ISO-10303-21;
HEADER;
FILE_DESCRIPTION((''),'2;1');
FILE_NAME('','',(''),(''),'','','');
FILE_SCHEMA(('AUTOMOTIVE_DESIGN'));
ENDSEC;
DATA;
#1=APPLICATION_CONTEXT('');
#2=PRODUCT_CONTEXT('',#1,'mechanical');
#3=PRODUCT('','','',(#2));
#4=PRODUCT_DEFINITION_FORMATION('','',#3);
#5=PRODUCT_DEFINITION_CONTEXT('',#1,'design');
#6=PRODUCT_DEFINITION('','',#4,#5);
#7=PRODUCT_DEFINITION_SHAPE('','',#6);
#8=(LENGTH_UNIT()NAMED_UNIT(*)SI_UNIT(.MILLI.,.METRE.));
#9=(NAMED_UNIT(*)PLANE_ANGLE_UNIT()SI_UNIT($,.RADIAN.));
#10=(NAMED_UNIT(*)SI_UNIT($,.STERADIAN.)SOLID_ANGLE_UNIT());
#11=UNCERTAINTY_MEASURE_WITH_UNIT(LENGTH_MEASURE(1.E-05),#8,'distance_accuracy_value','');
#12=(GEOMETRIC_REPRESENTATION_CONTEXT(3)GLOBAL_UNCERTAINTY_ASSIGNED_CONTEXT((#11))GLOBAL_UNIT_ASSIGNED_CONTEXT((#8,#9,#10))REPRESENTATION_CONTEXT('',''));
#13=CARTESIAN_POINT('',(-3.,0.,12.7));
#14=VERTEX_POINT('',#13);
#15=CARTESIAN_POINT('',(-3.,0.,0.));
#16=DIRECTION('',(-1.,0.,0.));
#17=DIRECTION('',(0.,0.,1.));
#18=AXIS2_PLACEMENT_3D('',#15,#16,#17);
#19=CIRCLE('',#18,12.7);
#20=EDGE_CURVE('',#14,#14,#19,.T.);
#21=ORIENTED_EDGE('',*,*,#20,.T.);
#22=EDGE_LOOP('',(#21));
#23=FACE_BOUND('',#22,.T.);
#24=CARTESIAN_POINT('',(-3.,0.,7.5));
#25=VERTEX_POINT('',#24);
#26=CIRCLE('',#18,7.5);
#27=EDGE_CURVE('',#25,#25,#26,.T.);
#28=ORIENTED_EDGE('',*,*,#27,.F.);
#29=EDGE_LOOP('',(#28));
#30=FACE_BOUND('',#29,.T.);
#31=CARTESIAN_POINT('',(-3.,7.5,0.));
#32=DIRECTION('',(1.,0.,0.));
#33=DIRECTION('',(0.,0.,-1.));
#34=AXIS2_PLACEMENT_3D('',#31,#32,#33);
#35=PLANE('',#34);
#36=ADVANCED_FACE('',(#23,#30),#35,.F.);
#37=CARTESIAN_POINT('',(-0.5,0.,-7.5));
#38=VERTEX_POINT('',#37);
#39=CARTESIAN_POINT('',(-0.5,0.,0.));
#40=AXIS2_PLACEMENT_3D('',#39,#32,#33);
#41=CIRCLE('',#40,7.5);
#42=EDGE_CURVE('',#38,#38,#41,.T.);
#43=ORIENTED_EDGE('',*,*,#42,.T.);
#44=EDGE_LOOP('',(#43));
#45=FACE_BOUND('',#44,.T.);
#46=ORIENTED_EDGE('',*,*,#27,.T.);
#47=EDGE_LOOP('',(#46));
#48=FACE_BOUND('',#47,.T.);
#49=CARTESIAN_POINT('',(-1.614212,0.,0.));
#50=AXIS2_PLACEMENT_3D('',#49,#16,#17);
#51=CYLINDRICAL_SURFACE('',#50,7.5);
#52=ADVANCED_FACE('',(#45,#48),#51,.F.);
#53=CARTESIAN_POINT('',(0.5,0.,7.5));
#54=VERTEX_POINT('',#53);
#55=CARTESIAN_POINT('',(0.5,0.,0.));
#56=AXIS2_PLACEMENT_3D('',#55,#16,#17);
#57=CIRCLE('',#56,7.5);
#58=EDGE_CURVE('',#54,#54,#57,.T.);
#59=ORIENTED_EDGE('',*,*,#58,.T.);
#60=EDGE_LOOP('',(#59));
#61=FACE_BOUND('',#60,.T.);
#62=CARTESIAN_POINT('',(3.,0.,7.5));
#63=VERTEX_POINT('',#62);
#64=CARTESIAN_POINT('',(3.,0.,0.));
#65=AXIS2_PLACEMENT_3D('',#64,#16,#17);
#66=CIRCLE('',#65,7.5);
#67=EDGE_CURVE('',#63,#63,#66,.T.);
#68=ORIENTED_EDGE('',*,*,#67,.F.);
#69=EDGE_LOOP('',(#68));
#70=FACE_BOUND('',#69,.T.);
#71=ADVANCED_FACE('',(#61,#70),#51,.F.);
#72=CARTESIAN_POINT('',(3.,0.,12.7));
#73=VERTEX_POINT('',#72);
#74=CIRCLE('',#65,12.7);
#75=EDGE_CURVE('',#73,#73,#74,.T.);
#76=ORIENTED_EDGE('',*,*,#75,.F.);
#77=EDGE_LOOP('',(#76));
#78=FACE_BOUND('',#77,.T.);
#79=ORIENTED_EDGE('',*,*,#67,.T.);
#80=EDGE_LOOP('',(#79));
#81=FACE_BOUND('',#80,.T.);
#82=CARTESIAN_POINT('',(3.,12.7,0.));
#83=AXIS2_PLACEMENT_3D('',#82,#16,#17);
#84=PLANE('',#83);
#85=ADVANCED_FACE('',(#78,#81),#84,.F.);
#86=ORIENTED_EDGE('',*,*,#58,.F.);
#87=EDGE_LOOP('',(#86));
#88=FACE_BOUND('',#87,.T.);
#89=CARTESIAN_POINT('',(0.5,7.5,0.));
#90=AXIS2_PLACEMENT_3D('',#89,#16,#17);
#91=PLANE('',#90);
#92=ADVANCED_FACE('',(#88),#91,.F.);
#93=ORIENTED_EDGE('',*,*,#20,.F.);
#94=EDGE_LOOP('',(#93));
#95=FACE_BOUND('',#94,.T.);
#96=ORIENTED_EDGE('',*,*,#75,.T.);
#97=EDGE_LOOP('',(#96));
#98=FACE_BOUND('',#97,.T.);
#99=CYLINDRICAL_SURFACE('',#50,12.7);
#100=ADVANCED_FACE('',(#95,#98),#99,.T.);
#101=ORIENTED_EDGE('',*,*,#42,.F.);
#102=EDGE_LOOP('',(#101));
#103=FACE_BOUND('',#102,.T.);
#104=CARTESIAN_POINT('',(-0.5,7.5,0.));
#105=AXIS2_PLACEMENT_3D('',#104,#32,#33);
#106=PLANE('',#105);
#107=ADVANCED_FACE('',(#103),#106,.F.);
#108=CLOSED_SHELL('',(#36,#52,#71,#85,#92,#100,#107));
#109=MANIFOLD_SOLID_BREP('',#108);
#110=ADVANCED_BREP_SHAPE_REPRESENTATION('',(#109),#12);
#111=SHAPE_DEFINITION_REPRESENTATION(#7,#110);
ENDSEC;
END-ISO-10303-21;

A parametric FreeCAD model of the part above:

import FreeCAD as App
import Part
import Sketcher

V = App.Vector

doc = App.newDocument("Part")
params = doc.addObject("Spreadsheet::Sheet", "Params")
for row, (alias, value) in enumerate([
    ("sketch1_width", "1 mm"),
    ("sketch1_height", "7.5 mm"),
    ("revolution_angle", "360 deg"),
    ("sketch2_width", "6 mm"),
    ("sketch2_height", "5.2 mm"),
    ("revolution2_angle", "360 deg"),
], start=1):
    params.set(f"A{row}", alias)
    params.set(f"B{row}", "=" + value)
    params.setAlias(f"B{row}", alias)

body = doc.addObject("PartDesign::Body", "Body")

sketch1 = doc.addObject("Sketcher::SketchObject", "Sketch")
body.addObject(sketch1)
sketch1.AttachmentSupport = (doc.XY_Plane, [""])
sketch1.MapMode = "FlatFace"
sketch1.addGeometry([
    Part.LineSegment(V(-0.5, 7.5, 0), V(-0.5, 0, 0)),
    Part.LineSegment(V(-0.5, 0, 0), V(0.5, 0, 0)),
    Part.LineSegment(V(0.5, 0, 0), V(0.5, 7.5, 0)),
    Part.LineSegment(V(0.5, 7.5, 0), V(-0.5, 7.5, 0)),
], False)
sketch1.addConstraint([
    Sketcher.Constraint("Coincident", 0, 2, 1, 1),
    Sketcher.Constraint("Coincident", 1, 2, 2, 1),
    Sketcher.Constraint("Coincident", 2, 2, 3, 1),
    Sketcher.Constraint("Coincident", 3, 2, 0, 1),
    Sketcher.Constraint("Vertical", 0),
    Sketcher.Constraint("Horizontal", 1),
    Sketcher.Constraint("Vertical", 2),
    Sketcher.Constraint("Horizontal", 3),
    Sketcher.Constraint("Symmetric", 0, 2, 1, 2, -1, 1),
    Sketcher.Constraint("DistanceX", 1, 1, 1, 2, 1.0),
    Sketcher.Constraint("DistanceY", 0, 2, 0, 1, 7.5),
])
sketch1.setExpression("Constraints[9]", "Params.sketch1_width")
sketch1.setExpression("Constraints[10]", "Params.sketch1_height")
revolution = doc.addObject("PartDesign::Revolution", "Revolution")
body.addObject(revolution)
revolution.Profile = sketch1
revolution.ReferenceAxis = (sketch1, ["H_Axis"])
revolution.setExpression("Angle", "Params.revolution_angle")

sketch2 = doc.addObject("Sketcher::SketchObject", "Sketch001")
body.addObject(sketch2)
sketch2.AttachmentSupport = (doc.XY_Plane, [""])
sketch2.MapMode = "FlatFace"
sketch2.addGeometry([
    Part.LineSegment(V(-3, 12.7, 0), V(-3, 7.5, 0)),
    Part.LineSegment(V(-3, 7.5, 0), V(3, 7.5, 0)),
    Part.LineSegment(V(3, 7.5, 0), V(3, 12.7, 0)),
    Part.LineSegment(V(3, 12.7, 0), V(-3, 12.7, 0)),
], False)
sketch2.addConstraint([
    Sketcher.Constraint("Coincident", 0, 2, 1, 1),
    Sketcher.Constraint("Coincident", 1, 2, 2, 1),
    Sketcher.Constraint("Coincident", 2, 2, 3, 1),
    Sketcher.Constraint("Coincident", 3, 2, 0, 1),
    Sketcher.Constraint("Vertical", 0),
    Sketcher.Constraint("Horizontal", 1),
    Sketcher.Constraint("Vertical", 2),
    Sketcher.Constraint("Horizontal", 3),
    Sketcher.Constraint("DistanceX", 1, 1, 1, 2, 6.0),
    Sketcher.Constraint("DistanceY", 0, 2, 0, 1, 5.2),
    Sketcher.Constraint("DistanceX", 0, 2, -1, 1, 3.0),
    Sketcher.Constraint("DistanceY", -1, 1, 0, 2, 7.5),
])
sketch2.setExpression("Constraints[8]", "Params.sketch2_width")
sketch2.setExpression("Constraints[9]", "Params.sketch2_height")
revolution2 = doc.addObject("PartDesign::Revolution", "Revolution001")
body.addObject(revolution2)
revolution2.Profile = sketch2
revolution2.ReferenceAxis = (sketch2, ["H_Axis"])
revolution2.setExpression("Angle", "Params.revolution2_angle")

doc.recompute()
